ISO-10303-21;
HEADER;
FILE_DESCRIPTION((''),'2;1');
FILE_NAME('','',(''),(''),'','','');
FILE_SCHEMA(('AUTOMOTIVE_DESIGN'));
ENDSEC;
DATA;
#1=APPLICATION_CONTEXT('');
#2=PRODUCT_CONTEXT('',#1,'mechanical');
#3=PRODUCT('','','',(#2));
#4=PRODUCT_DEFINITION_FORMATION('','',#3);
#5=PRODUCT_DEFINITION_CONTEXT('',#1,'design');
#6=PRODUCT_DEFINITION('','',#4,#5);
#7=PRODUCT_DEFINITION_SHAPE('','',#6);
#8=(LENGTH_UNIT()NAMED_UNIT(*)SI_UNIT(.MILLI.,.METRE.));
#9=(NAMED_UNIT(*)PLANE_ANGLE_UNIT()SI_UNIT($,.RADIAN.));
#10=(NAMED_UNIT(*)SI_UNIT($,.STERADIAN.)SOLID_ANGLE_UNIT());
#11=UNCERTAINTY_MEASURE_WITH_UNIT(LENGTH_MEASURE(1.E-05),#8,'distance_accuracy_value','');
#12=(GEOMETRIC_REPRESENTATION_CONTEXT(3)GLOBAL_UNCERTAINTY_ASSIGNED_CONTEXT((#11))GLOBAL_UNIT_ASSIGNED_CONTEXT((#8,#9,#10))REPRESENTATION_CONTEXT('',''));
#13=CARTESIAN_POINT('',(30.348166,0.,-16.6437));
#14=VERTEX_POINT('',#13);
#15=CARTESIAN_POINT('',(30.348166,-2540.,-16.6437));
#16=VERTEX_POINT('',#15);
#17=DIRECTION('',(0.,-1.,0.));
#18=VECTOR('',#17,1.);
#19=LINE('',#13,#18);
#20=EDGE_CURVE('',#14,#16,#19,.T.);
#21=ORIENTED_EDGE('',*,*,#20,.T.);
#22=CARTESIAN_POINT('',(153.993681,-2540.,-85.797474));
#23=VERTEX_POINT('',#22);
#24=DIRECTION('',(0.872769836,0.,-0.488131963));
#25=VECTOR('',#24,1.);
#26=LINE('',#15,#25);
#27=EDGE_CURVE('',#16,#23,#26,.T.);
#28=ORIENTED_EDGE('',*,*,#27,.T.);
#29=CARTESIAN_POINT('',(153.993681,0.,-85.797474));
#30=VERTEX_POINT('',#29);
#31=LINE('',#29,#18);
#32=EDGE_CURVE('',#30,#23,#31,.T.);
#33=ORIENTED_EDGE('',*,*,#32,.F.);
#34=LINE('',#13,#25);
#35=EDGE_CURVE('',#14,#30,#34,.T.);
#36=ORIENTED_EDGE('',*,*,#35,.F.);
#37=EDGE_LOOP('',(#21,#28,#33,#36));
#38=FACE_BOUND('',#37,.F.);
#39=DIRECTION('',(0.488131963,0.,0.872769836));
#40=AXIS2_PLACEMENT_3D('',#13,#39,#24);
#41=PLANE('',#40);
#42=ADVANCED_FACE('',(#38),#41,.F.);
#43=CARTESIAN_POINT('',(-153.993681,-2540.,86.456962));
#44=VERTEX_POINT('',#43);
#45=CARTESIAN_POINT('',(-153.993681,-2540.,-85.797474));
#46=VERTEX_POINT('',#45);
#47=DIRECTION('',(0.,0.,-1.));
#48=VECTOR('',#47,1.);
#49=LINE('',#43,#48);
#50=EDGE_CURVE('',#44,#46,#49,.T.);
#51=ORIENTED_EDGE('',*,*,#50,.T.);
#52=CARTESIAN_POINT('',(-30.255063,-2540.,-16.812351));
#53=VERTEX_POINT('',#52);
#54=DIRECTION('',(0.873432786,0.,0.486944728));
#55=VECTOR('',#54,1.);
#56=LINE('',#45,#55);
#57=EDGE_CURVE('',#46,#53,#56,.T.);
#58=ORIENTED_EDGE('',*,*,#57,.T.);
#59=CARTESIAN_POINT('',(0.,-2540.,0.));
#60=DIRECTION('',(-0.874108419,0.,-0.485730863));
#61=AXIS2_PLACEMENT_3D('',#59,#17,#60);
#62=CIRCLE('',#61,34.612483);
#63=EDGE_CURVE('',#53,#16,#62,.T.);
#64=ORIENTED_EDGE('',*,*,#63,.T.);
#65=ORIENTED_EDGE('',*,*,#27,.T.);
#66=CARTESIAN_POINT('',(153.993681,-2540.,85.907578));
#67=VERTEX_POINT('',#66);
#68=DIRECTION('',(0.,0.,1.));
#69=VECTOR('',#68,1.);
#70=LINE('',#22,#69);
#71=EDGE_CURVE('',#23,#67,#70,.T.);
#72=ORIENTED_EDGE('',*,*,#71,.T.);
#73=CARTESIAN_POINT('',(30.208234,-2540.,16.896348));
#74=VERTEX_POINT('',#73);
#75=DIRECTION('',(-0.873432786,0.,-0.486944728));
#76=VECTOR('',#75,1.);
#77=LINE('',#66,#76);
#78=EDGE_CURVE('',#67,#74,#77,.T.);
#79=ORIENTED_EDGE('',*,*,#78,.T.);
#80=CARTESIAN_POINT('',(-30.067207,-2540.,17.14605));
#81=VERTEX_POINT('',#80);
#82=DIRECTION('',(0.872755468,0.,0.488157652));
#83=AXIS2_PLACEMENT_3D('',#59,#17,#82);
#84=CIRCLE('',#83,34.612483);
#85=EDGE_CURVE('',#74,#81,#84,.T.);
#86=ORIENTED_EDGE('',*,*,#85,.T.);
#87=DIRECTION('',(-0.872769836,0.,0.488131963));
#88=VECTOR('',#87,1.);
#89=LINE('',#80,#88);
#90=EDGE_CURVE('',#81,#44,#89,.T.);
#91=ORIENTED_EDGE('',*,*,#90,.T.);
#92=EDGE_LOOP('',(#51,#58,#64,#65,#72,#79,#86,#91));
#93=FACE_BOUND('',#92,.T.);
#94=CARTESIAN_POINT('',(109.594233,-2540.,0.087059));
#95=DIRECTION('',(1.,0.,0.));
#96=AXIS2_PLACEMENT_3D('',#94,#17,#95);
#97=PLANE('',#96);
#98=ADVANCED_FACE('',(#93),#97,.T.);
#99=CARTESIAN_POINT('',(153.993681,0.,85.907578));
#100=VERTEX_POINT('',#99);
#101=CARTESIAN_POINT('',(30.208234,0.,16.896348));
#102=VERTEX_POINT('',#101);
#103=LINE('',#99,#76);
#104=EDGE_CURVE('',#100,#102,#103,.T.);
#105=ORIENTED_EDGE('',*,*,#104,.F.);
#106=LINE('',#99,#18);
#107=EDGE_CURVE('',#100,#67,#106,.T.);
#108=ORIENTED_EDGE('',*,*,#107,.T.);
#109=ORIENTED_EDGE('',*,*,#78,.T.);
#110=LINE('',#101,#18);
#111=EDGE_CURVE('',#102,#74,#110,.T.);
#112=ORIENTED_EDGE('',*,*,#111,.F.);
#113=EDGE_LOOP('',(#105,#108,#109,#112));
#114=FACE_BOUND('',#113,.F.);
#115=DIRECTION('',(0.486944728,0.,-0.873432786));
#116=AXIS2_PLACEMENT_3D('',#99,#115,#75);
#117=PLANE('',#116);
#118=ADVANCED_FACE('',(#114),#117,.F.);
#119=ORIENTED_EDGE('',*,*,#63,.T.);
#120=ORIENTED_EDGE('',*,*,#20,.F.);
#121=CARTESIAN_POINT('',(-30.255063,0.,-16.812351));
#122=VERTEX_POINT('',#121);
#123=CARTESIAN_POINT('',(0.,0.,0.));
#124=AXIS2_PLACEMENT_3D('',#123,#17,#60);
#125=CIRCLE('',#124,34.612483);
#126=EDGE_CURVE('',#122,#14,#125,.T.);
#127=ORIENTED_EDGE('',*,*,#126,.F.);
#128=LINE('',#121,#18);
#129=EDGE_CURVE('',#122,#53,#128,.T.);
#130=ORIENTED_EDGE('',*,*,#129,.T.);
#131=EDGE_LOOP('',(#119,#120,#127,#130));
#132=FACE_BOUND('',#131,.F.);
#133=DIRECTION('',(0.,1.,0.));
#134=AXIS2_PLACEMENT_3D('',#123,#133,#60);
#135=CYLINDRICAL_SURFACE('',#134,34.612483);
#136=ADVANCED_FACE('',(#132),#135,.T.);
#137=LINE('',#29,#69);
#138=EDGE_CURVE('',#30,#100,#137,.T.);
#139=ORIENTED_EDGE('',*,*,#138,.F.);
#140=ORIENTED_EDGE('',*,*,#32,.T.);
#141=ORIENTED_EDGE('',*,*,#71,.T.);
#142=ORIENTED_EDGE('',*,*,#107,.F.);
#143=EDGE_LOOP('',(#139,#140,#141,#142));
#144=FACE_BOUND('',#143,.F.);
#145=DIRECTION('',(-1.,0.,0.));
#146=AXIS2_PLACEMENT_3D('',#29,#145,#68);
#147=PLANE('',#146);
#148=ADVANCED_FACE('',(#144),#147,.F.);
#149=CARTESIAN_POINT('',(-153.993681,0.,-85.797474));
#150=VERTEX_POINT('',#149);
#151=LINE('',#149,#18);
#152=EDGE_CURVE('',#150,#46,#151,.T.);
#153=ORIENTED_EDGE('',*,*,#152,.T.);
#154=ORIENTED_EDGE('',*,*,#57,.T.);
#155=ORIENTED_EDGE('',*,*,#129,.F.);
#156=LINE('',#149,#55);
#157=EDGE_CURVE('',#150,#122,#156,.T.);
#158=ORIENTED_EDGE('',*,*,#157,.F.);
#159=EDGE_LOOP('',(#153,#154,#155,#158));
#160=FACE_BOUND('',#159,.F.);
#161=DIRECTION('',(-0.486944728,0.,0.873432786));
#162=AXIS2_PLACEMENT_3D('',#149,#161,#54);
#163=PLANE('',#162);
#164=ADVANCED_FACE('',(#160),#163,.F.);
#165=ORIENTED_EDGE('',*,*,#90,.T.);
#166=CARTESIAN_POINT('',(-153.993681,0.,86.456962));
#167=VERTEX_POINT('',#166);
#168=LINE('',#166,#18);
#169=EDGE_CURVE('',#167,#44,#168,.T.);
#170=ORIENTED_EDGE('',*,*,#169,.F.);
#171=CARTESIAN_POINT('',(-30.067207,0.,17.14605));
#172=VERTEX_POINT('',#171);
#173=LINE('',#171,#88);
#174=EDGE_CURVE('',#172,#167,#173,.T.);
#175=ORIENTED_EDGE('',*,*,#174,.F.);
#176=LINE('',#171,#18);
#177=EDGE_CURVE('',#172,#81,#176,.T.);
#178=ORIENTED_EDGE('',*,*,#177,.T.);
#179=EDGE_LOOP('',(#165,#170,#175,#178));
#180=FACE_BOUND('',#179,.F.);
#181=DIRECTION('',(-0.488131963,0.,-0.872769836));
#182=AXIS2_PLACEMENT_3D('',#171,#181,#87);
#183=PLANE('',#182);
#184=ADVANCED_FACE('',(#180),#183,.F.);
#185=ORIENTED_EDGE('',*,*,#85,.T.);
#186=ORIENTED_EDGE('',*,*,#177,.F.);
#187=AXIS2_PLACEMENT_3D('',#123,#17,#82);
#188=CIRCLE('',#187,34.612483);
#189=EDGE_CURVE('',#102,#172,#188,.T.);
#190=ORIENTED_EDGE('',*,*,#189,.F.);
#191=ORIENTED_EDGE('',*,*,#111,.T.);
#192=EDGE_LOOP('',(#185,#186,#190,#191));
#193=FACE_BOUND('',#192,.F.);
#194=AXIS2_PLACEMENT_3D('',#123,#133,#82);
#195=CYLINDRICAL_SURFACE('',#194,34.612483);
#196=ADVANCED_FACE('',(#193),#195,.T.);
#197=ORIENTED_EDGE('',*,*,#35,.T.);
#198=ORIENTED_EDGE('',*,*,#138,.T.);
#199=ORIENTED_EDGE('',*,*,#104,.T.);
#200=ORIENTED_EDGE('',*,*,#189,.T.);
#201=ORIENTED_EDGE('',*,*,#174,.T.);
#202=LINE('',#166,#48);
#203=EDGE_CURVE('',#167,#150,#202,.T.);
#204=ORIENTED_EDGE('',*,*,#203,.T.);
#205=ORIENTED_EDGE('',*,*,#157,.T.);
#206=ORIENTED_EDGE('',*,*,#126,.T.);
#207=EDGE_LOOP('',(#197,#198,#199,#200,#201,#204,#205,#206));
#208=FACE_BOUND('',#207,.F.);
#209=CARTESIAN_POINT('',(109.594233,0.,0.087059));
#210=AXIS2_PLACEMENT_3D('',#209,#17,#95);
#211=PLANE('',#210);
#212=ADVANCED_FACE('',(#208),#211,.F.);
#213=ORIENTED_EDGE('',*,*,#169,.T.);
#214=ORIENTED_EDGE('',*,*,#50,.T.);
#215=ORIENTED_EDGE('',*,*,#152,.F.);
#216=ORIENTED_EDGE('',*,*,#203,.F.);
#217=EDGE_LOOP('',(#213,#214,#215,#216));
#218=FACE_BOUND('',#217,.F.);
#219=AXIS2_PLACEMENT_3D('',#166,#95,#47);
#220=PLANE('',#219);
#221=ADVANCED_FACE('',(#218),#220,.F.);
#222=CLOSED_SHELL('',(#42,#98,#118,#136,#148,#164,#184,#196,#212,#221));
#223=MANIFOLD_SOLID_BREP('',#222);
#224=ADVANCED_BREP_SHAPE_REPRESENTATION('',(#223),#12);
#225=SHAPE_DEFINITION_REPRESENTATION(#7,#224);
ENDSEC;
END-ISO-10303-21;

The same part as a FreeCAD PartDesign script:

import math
import FreeCAD as App
import Part
import Sketcher
from FreeCAD import Vector
Q = App.Units.Quantity

doc = App.newDocument("Part")
body = doc.addObject("PartDesign::Body", "Body")

sketch1 = body.newObject("Sketcher::SketchObject", "Sketch")
sketch1.AttachmentSupport = (doc.getObject("XZ_Plane"), [""])
sketch1.MapMode = "FlatFace"
sketch1.addGeometry([
    Part.LineSegment(Vector(154, 86, 0), Vector(30, 17, 0)),
    Part.ArcOfCircle(Part.Circle(Vector(0, 0, 0), Vector(0, 0, 1), 35), math.radians(29), math.radians(150)),
    Part.LineSegment(Vector(-30, 17, 0), Vector(-154, 86, 0)),
    Part.LineSegment(Vector(-154, 86, 0), Vector(-154, -86, 0)),
    Part.LineSegment(Vector(-154, -86, 0), Vector(-30, -17, 0)),
    Part.ArcOfCircle(Part.Circle(Vector(0, 0, 0), Vector(0, 0, 1), 35), math.radians(-151), math.radians(-29)),
    Part.LineSegment(Vector(30, -17, 0), Vector(154, -86, 0)),
    Part.LineSegment(Vector(154, -86, 0), Vector(154, 86, 0)),
], False)
sketch1.addConstraint([
    Sketcher.Constraint("Coincident", 0, 2, 1, 1),
    Sketcher.Constraint("Coincident", 1, 2, 2, 1),
    Sketcher.Constraint("Coincident", 2, 2, 3, 1),
    Sketcher.Constraint("Coincident", 3, 2, 4, 1),
    Sketcher.Constraint("Coincident", 4, 2, 5, 1),
    Sketcher.Constraint("Coincident", 5, 2, 6, 1),
    Sketcher.Constraint("Coincident", 6, 2, 7, 1),
    Sketcher.Constraint("Coincident", 7, 2, 0, 1),
    Sketcher.Constraint("Vertical", 3),
    Sketcher.Constraint("Vertical", 7),
    Sketcher.Constraint("Coincident", 1, 3, -1, 1),
    Sketcher.Constraint("Coincident", 5, 3, -1, 1),
    Sketcher.Constraint("Equal", 1, 5),
    Sketcher.Constraint("Symmetric", 3, 2, 6, 2, -2),
    Sketcher.Constraint("Parallel", 0, 4),
    Sketcher.Constraint("Parallel", 2, 6),
    Sketcher.Constraint("Radius", 1, Q("34.612483 mm")),
    Sketcher.Constraint("DistanceY", 5, 2, -1, 1, Q("16.6437 mm")),
    Sketcher.Constraint("DistanceY", 0, 2, 1, 2, Q("0.249702 mm")),
    Sketcher.Constraint("DistanceY", 4, 2, 1, 2, Q("33.958401 mm")),
    Sketcher.Constraint("Distance", 2, Q("141.99216 mm")),
    Sketcher.Constraint("Distance", 4, Q("141.669308 mm")),
    Sketcher.Constraint("DistanceY", 3, 2, 3, 1, Q("172.254436 mm")),
])
pad1 = body.newObject("PartDesign::Pad", "Pad")
pad1.Profile = sketch1
pad1.Length = Q("100 in")

doc.recompute()
